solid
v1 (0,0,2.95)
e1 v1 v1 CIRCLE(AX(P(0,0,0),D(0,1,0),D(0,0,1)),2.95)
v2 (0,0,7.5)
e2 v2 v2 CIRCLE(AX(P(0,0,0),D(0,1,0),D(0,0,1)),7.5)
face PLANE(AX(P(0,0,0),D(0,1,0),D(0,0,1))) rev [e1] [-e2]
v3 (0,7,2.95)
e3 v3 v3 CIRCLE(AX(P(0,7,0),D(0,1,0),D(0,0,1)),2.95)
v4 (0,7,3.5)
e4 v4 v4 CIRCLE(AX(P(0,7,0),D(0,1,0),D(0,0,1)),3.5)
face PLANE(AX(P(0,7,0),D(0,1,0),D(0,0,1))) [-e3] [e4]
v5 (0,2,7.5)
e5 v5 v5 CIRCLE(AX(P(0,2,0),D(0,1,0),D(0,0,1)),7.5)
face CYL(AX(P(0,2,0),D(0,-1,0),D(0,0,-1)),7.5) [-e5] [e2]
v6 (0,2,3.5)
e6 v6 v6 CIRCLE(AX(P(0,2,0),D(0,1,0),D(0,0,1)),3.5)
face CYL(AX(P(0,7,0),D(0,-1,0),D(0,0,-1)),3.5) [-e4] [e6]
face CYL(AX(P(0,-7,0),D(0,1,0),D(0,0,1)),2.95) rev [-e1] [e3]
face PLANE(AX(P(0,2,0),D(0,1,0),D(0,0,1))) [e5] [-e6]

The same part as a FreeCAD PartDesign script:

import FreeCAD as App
import Part
import Sketcher
from FreeCAD import Vector
Q = App.Units.Quantity

doc = App.newDocument("Part")
body = doc.addObject("PartDesign::Body", "Body")

# Sketch on XZ plane
sketch1 = body.newObject("Sketcher::SketchObject", "Sketch")
sketch1.AttachmentSupport = (doc.getObject("XZ_Plane"), [""])
sketch1.MapMode = "FlatFace"
sketch1.addGeometry(Part.Circle(Vector(0, 0, 0), Vector(0, 0, 1), 7.5), False)
sketch1.addConstraint([
    Sketcher.Constraint("Coincident", 0, 3, -1, 1),
    Sketcher.Constraint("Diameter", 0, Q("15 mm")),
])
pad1 = body.newObject("PartDesign::Pad", "Pad")
pad1.Profile = sketch1
pad1.Length = 2
pad1.Reversed = True

# Sketch on XZ plane
sketch2 = body.newObject("Sketcher::SketchObject", "Sketch001")
sketch2.AttachmentSupport = (doc.getObject("XZ_Plane"), [""])
sketch2.MapMode = "FlatFace"
sketch2.AttachmentOffset = App.Placement(Vector(0, 0, -2), App.Rotation())
sketch2.addGeometry(Part.Circle(Vector(0, 0, 0), Vector(0, 0, 1), 3.5), False)
sketch2.addConstraint([
    Sketcher.Constraint("Coincident", 0, 3, -1, 1),
    Sketcher.Constraint("Diameter", 0, Q("7 mm")),
])
pad2 = body.newObject("PartDesign::Pad", "Pad001")
pad2.Profile = sketch2
pad2.Length = 5
pad2.Reversed = True

# Sketch on XZ plane
sketch3 = body.newObject("Sketcher::SketchObject", "Sketch002")
sketch3.AttachmentSupport = (doc.getObject("XZ_Plane"), [""])
sketch3.MapMode = "FlatFace"
sketch3.AttachmentOffset = App.Placement(Vector(0, 0, -7), App.Rotation())
sketch3.addGeometry(Part.Circle(Vector(0, 0, 0), Vector(0, 0, 1), 2.95), False)
sketch3.addConstraint([
    Sketcher.Constraint("Coincident", 0, 3, -1, 1),
    Sketcher.Constraint("Diameter", 0, Q("5.9 mm")),
])
pocket1 = body.newObject("PartDesign::Pocket", "Pocket")
pocket1.Profile = sketch3
pocket1.Length = 14
pocket1.Reversed = True

doc.recompute()
